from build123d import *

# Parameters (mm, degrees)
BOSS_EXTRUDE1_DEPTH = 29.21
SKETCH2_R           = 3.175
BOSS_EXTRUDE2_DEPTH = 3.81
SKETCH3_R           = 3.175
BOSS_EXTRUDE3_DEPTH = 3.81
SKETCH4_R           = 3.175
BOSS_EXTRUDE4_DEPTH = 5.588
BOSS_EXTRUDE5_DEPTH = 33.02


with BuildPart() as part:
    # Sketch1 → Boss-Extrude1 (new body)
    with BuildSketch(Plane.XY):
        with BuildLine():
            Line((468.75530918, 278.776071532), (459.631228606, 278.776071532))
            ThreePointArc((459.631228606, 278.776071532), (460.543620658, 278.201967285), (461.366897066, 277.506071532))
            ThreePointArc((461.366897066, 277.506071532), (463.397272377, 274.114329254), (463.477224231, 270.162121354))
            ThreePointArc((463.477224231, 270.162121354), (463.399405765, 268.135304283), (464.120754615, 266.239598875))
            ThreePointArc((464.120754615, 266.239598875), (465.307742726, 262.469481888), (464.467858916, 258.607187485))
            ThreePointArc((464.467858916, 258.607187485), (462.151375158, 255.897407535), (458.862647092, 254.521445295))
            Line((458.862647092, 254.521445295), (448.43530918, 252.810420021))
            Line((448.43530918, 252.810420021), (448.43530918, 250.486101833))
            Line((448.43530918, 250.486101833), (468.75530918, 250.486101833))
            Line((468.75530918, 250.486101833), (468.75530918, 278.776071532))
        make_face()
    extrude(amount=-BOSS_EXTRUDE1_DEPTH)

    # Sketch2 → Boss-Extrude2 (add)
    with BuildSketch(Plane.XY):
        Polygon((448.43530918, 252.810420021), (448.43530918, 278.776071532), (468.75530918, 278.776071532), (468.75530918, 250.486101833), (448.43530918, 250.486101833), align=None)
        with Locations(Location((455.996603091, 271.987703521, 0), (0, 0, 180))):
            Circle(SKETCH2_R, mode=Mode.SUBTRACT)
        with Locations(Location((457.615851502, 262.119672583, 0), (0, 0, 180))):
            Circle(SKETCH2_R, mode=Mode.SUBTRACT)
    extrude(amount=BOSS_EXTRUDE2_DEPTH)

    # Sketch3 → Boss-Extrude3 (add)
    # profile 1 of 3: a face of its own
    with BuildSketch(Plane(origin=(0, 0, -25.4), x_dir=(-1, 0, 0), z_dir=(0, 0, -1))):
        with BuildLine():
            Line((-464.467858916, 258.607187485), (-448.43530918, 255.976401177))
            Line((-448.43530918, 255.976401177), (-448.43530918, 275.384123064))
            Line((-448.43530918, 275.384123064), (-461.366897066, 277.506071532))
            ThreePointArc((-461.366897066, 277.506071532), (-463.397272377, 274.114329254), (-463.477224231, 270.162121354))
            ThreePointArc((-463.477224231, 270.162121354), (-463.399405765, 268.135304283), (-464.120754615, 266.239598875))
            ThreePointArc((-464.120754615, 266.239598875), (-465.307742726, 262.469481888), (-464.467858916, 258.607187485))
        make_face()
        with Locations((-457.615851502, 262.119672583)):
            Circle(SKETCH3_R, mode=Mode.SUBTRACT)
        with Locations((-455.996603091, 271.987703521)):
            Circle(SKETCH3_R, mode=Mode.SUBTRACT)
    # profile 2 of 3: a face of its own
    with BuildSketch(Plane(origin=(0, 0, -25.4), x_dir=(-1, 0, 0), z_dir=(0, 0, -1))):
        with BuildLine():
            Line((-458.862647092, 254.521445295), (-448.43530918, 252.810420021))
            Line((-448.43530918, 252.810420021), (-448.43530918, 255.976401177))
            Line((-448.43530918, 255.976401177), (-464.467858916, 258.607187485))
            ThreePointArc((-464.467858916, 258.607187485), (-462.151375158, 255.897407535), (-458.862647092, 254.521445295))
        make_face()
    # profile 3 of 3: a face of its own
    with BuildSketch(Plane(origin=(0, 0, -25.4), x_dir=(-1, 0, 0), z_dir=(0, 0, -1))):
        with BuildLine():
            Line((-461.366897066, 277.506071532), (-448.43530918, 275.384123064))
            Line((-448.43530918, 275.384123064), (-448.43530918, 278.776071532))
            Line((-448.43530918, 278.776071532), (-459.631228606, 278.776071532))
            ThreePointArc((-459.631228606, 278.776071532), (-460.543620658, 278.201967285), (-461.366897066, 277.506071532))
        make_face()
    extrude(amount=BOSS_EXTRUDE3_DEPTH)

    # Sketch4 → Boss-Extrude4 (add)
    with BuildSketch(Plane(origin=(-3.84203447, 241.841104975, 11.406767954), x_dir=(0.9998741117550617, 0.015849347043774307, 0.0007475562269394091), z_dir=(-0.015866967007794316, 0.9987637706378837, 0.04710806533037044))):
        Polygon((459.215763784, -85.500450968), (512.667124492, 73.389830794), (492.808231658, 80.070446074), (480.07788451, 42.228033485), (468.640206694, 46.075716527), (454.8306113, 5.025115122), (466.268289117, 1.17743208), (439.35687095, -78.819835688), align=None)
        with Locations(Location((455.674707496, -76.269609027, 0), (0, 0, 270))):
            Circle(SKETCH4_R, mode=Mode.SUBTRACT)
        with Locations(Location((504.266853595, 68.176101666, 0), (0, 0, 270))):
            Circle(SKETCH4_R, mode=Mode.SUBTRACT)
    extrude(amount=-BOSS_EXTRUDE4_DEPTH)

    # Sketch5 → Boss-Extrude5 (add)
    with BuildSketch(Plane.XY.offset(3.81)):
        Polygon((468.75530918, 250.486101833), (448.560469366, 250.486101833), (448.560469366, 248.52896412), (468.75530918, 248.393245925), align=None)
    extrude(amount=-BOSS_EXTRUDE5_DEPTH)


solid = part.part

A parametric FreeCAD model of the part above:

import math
import FreeCAD as App
import Part
import Sketcher
from FreeCAD import Vector
Q = App.Units.Quantity


def add_polygon(sketch, points):
    """Adds a closed chain of lines whose ends are joined by coincident constraints."""
    first, n = sketch.GeometryCount, len(points)
    for a, b in zip(points, points[1:] + points[:1]):
        sketch.addGeometry(Part.LineSegment(App.Vector(*a, 0), App.Vector(*b, 0)), False)
    for i in range(n):
        sketch.addConstraint(Sketcher.Constraint("Coincident", first + i, 2, first + (i + 1) % n, 1))

doc = App.newDocument("Part")
body = doc.addObject("PartDesign::Body", "Body")

sketch1 = doc.addObject("Sketcher::SketchObject", "Sketch")
body.addObject(sketch1)
sketch1.AttachmentSupport = (doc.XY_Plane, [""])
sketch1.MapMode = "FlatFace"
sketch1.addGeometry([
    Part.LineSegment(Vector(468.8, 278.8, 0), Vector(459.6, 278.8, 0)),
    Part.ArcOfCircle(Part.Circle(Vector(456, 272, 0), Vector(0, 0, 1), 7.7), math.radians(45.78), math.radians(61.83)),
    Part.ArcOfCircle(Part.Circle(Vector(456, 272, 0), Vector(0, 0, 1), 7.7), math.radians(-14), math.radians(46)),
    Part.ArcOfCircle(Part.Circle(Vector(468.4, 269, 0), Vector(0, 0, 1), 5.1), math.radians(166), math.radians(212)),
    Part.ArcOfCircle(Part.Circle(Vector(457.6, 262.1, 0), Vector(0, 0, 1), 7.7), math.radians(-27), math.radians(32)),
    Part.ArcOfCircle(Part.Circle(Vector(457.6, 262.1, 0), Vector(0, 0, 1), 7.7), math.radians(-81), math.radians(-27)),
    Part.LineSegment(Vector(458.9, 254.5, 0), Vector(448.4, 252.8, 0)),
    Part.LineSegment(Vector(448.4, 252.8, 0), Vector(448.4, 250.5, 0)),
    Part.LineSegment(Vector(448.4, 250.5, 0), Vector(468.8, 250.5, 0)),
    Part.LineSegment(Vector(468.8, 250.5, 0), Vector(468.8, 278.8, 0)),
], False)
sketch1.addConstraint([
    Sketcher.Constraint("Coincident", 0, 2, 1, 2),
    Sketcher.Constraint("Tangent", 1, 1, 2, 2),
    Sketcher.Constraint("Tangent", 2, 1, 3, 1),
    Sketcher.Constraint("Tangent", 3, 2, 4, 2),
    Sketcher.Constraint("Tangent", 4, 1, 5, 2),
    Sketcher.Constraint("Tangent", 5, 1, 6, 1),
    Sketcher.Constraint("Coincident", 6, 2, 7, 1),
    Sketcher.Constraint("Coincident", 7, 2, 8, 1),
    Sketcher.Constraint("Coincident", 8, 2, 9, 1),
    Sketcher.Constraint("Coincident", 9, 2, 0, 1),
    Sketcher.Constraint("Horizontal", 0),
    Sketcher.Constraint("Vertical", 7),
    Sketcher.Constraint("Horizontal", 8),
    Sketcher.Constraint("Vertical", 9),
    Sketcher.Constraint("Equal", 1, 2),
    Sketcher.Constraint("Equal", 4, 5),
    Sketcher.Constraint("Radius", 3, Q("0.2 in")),
    Sketcher.Constraint("DistanceX", 8, 1, 8, 2, Q("0.8 in")),
    Sketcher.Constraint("DistanceY", 1, 1, 0, 2, Q("0.05 in")),
    Sketcher.Constraint("Radius", 1, 7.700159),
    Sketcher.Constraint("Radius", 4, 7.699841),
    Sketcher.Constraint("DistanceX", 0, 2, 0, 1, 9.124081),
    Sketcher.Constraint("DistanceY", 7, 2, 7, 1, 2.324318),
    Sketcher.Constraint("DistanceY", 9, 1, 9, 2, 28.28997),
    Sketcher.Constraint("DistanceY", -1, 1, 3, 2, 266.239599),
    Sketcher.Constraint("DistanceY", -1, 1, 7, 2, 250.486102),
    Sketcher.Constraint("DistanceY", 5, 3, 0, 2, 16.656399),
    Sketcher.Constraint("DistanceX", -1, 1, 3, 3, 468.412389),
    Sketcher.Constraint("DistanceX", -1, 1, 0, 2, 459.631229),
    Sketcher.Constraint("DistanceX", -1, 1, 4, 1, 464.467859),
])
pad1 = doc.addObject("PartDesign::Pad", "Pad")
body.addObject(pad1)
pad1.Profile = sketch1
pad1.Length = Q("1.15 in")
pad1.Reversed = True

sketch2 = doc.addObject("Sketcher::SketchObject", "Sketch001")
body.addObject(sketch2)
sketch2.AttachmentSupport = (doc.XY_Plane, [""])
sketch2.MapMode = "FlatFace"
add_polygon(sketch2, [(448.4, 278.8), (448.4, 250.5), (468.8, 250.5), (468.8, 278.8)])
sketch2.addGeometry(Part.Circle(Vector(457.6, 262.1, 0), Vector(0, 0, 1), 3.2), False)
sketch2.addGeometry(Part.Circle(Vector(456, 272, 0), Vector(0, 0, 1), 3.2), False)
sketch2.addConstraint([
    Sketcher.Constraint("Vertical", 0),
    Sketcher.Constraint("Horizontal", 1),
    Sketcher.Constraint("Vertical", 2),
    Sketcher.Constraint("Horizontal", 3),
    Sketcher.Constraint("Equal", 4, 5),
    Sketcher.Constraint("Diameter", 4, Q("0.25 in")),
    Sketcher.Constraint("DistanceX", 1, 1, 1, 2, Q("0.8 in")),
    Sketcher.Constraint("DistanceY", 0, 2, 0, 1, 28.28997),
    Sketcher.Constraint("DistanceY", -1, 1, 0, 2, 250.486102),
    Sketcher.Constraint("DistanceY", 0, 2, 5, 3, 21.501602),
    Sketcher.Constraint("DistanceY", 4, 3, 2, 2, 16.656399),
    Sketcher.Constraint("DistanceX", -1, 1, 4, 3, 457.615852),
    Sketcher.Constraint("DistanceX", -1, 1, 0, 2, 448.435309),
    Sketcher.Constraint("DistanceX", 5, 3, 4, 3, 1.619248),
])
pad2 = doc.addObject("PartDesign::Pad", "Pad001")
body.addObject(pad2)
pad2.Profile = sketch2
pad2.Length = Q("0.15 in")

sketch3 = doc.addObject("Sketcher::SketchObject", "Sketch002")
body.addObject(sketch3)
sketch3.AttachmentSupport = (doc.XY_Plane, [""])
sketch3.MapMode = "FlatFace"
sketch3.AttachmentOffset = App.Placement(Vector(0, 0, -1 * 25.4), App.Rotation())
sketch3.addGeometry([
    Part.ArcOfCircle(Part.Circle(Vector(457.6, 262.1, 0), Vector(0, 0, 1), 7.7), math.radians(-27), math.radians(32)),
    Part.ArcOfCircle(Part.Circle(Vector(457.6, 262.1, 0), Vector(0, 0, 1), 7.7), math.radians(-81), math.radians(-27)),
    Part.LineSegment(Vector(458.9, 254.5, 0), Vector(448.4, 252.8, 0)),
    Part.LineSegment(Vector(448.4, 252.8, 0), Vector(448.4, 278.8, 0)),
    Part.LineSegment(Vector(448.4, 278.8, 0), Vector(459.6, 278.8, 0)),
    Part.ArcOfCircle(Part.Circle(Vector(456, 272, 0), Vector(0, 0, 1), 7.7), math.radians(45.78), math.radians(61.83)),
    Part.ArcOfCircle(Part.Circle(Vector(456, 272, 0), Vector(0, 0, 1), 7.7), math.radians(-14), math.radians(46)),
    Part.ArcOfCircle(Part.Circle(Vector(468.4, 269, 0), Vector(0, 0, 1), 5.1), math.radians(166), math.radians(212)),
    Part.Circle(Vector(457.6, 262.1, 0), Vector(0, 0, 1), 3.2),
    Part.Circle(Vector(456, 272, 0), Vector(0, 0, 1), 3.2),
], False)
sketch3.addConstraint([
    Sketcher.Constraint("Tangent", 0, 1, 1, 2),
    Sketcher.Constraint("Tangent", 1, 1, 2, 1),
    Sketcher.Constraint("Coincident", 2, 2, 3, 1),
    Sketcher.Constraint("Coincident", 3, 2, 4, 1),
    Sketcher.Constraint("Coincident", 4, 2, 5, 2),
    Sketcher.Constraint("Tangent", 5, 1, 6, 2),
    Sketcher.Constraint("Tangent", 6, 1, 7, 1),
    Sketcher.Constraint("Tangent", 7, 2, 0, 2),
    Sketcher.Constraint("Vertical", 3),
    Sketcher.Constraint("Horizontal", 4),
    Sketcher.Constraint("Coincident", 8, 3, 0, 3),
    Sketcher.Constraint("Coincident", 9, 3, 5, 3),
    Sketcher.Constraint("Equal", 0, 1),
    Sketcher.Constraint("Equal", 5, 6),
    Sketcher.Constraint("Equal", 8, 9),
    Sketcher.Constraint("Radius", 7, Q("0.2 in")),
    Sketcher.Constraint("Diameter", 8, Q("0.25 in")),
    Sketcher.Constraint("DistanceY", 5, 1, 4, 2, Q("0.05 in")),
    Sketcher.Constraint("Radius", 0, 7.699841),
    Sketcher.Constraint("Radius", 5, 7.700159),
    Sketcher.Constraint("DistanceX", 4, 1, 4, 2, 11.195919),
    Sketcher.Constraint("DistanceY", 3, 1, 3, 2, 25.965652),
    Sketcher.Constraint("DistanceY", -1, 1, 7, 2, 266.239599),
    Sketcher.Constraint("DistanceY", 0, 3, 3, 2, 16.656399),
    Sketcher.Constraint("DistanceX", -1, 1, 0, 3, 457.615851),
    Sketcher.Constraint("DistanceX", -1, 1, 7, 3, 468.412389),
    Sketcher.Constraint("DistanceX", -1, 1, 0, 1, 464.467859),
    Sketcher.Constraint("DistanceX", -1, 1, 2, 2, 448.435309),
])
pad3 = doc.addObject("PartDesign::Pad", "Pad002")
body.addObject(pad3)
pad3.Profile = sketch3
pad3.Length = Q("0.15 in")
pad3.Reversed = True

sketch4 = doc.addObject("Sketcher::SketchObject", "Sketch003")
body.addObject(sketch4)
sketch4.Placement = App.Placement(Vector(-3.842034, 241.841105, 11.406768), App.Rotation(Vector(0.999874112, 0.015849347, 0.000747556), Vector(0, 0.047113996, -0.99888952), Vector(-0.015866967, 0.998763771, 0.047108065), "ZXY"))
add_polygon(sketch4, [(459.2, -85.5), (512.7, 73.4), (492.8, 80.1), (480.1, 42.2), (468.6, 46.1), (454.8, 5), (466.3, 1.2), (439.4, -78.8)])
sketch4.addGeometry(Part.Circle(Vector(455.7, -76.3, 0), Vector(0, 0, 1), 3.2), False)
sketch4.addGeometry(Part.Circle(Vector(504.3, 68.2, 0), Vector(0, 0, 1), 3.2), False)
sketch4.addConstraint([
    Sketcher.Constraint("Equal", 8, 9),
    Sketcher.Constraint("Perpendicular", 0, 1),
    Sketcher.Constraint("Perpendicular", 1, 2),
    Sketcher.Constraint("Perpendicular", 2, 3),
    Sketcher.Constraint("Perpendicular", 3, 4),
    Sketcher.Constraint("Perpendicular", 4, 5),
    Sketcher.Constraint("Perpendicular", 5, 6),
    Sketcher.Constraint("Perpendicular", 6, 7),
    Sketcher.Constraint("Equal", 3, 5),
    Sketcher.Constraint("Diameter", 8, Q("0.25 in")),
    Sketcher.Constraint("Distance", 0, Q("6.6 in")),
    Sketcher.Constraint("DistanceY", -1, 1, 9, 3, 68.176102),
    Sketcher.Constraint("DistanceX", 8, 3, 3, 2, 12.965499),
    Sketcher.Constraint("DistanceY", 4, 2, 3, 2, 41.050601),
    Sketcher.Constraint("Distance", 6, 84.402531),
    Sketcher.Constraint("DistanceY", 8, 3, -1, 1, 76.269609),
    Sketcher.Constraint("DistanceY", -1, 1, 0, 2, 73.389831),
    Sketcher.Constraint("DistanceX", -1, 1, 1, 2, 492.808232),
    Sketcher.Constraint("DistanceX", -1, 1, 4, 2, 454.830612),
    Sketcher.Constraint("DistanceX", -1, 1, 5, 2, 466.268289),
    Sketcher.Constraint("DistanceX", 9, 3, 0, 2, 8.400271),
    Sketcher.Constraint("DistanceX", 1, 2, 9, 3, 11.458622),
])
pad4 = doc.addObject("PartDesign::Pad", "Pad003")
body.addObject(pad4)
pad4.Profile = sketch4
pad4.Length = Q("0.22 in")
pad4.Reversed = True

sketch5 = doc.addObject("Sketcher::SketchObject", "Sketch004")
body.addObject(sketch5)
sketch5.AttachmentSupport = (doc.XY_Plane, [""])
sketch5.MapMode = "FlatFace"
sketch5.AttachmentOffset = App.Placement(Vector(0, 0, 0.15 * 25.4), App.Rotation())
add_polygon(sketch5, [(468.8, 250.5), (448.6, 250.5), (448.6, 248.5), (468.8, 248.4)])
sketch5.addConstraint([
    Sketcher.Constraint("Horizontal", 0),
    Sketcher.Constraint("Vertical", 1),
    Sketcher.Constraint("Vertical", 3),
    Sketcher.Constraint("DistanceX", 0, 2, 0, 1, 20.19484),
    Sketcher.Constraint("DistanceY", -1, 1, 0, 2, 250.486102),
    Sketcher.Constraint("DistanceY", 1, 2, 1, 1, 1.957138),
    Sketcher.Constraint("DistanceY", 3, 1, 3, 2, 2.092856),
    Sketcher.Constraint("DistanceX", -1, 1, 0, 2, 448.560469),
])
pad5 = doc.addObject("PartDesign::Pad", "Pad004")
body.addObject(pad5)
pad5.Profile = sketch5
pad5.Length = Q("1.3 in")
pad5.Reversed = True

doc.recompute()
